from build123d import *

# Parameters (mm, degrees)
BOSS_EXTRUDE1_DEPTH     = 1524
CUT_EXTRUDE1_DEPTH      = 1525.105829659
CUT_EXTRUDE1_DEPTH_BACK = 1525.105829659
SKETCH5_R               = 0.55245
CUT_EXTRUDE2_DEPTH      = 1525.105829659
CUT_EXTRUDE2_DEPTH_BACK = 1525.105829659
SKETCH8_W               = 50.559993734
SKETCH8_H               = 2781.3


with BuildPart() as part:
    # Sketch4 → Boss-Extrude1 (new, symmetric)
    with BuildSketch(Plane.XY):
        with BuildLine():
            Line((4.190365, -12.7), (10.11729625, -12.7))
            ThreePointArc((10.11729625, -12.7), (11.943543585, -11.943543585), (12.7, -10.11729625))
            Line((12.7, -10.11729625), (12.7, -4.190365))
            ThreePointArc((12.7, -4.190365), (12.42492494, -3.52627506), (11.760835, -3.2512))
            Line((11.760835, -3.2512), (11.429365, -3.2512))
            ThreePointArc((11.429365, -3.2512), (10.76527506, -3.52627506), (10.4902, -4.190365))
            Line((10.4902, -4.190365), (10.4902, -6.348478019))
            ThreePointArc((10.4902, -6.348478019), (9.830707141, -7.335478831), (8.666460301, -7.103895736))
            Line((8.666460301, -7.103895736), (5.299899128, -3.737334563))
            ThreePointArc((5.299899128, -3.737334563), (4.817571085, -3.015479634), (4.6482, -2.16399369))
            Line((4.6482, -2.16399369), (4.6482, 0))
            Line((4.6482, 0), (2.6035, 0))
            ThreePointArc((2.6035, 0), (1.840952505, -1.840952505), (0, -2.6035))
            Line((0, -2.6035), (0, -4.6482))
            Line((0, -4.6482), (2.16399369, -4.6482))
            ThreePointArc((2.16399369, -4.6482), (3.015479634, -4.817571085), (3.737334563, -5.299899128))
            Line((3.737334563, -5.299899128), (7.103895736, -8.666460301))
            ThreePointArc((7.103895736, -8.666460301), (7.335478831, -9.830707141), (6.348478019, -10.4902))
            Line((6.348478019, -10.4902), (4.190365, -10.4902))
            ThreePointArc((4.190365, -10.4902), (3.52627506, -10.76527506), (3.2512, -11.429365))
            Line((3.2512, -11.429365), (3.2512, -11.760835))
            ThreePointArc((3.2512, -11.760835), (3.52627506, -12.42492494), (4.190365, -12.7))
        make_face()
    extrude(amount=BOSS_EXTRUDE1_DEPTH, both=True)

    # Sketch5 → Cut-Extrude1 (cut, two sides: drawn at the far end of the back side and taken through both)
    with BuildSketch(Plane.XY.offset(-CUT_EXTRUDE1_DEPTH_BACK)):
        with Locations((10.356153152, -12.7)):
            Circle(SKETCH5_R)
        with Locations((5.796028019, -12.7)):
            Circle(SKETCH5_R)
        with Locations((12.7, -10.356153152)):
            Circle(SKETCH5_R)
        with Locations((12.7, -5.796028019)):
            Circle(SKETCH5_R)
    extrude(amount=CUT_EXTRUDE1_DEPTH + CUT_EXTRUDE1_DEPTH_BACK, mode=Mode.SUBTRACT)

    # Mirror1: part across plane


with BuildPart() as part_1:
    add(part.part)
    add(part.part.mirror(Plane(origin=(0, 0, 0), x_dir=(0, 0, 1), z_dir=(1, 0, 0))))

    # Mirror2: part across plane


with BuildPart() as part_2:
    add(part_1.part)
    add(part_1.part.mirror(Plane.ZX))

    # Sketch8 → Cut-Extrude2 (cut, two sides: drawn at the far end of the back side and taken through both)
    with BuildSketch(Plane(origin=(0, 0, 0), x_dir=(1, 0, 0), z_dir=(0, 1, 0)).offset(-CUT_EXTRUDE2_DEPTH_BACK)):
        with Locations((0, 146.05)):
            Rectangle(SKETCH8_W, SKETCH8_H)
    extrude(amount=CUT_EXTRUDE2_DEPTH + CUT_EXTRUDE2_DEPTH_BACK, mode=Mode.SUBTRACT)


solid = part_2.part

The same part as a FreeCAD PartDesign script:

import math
import FreeCAD as App
import Part
import Sketcher

V = App.Vector
Q = App.Units.Quantity


def add_polygon(sketch, points):
    """Adds a closed chain of lines whose ends are joined by coincident constraints."""
    first, n = sketch.GeometryCount, len(points)
    for a, b in zip(points, points[1:] + points[:1]):
        sketch.addGeometry(Part.LineSegment(App.Vector(*a, 0), App.Vector(*b, 0)), False)
    for i in range(n):
        sketch.addConstraint(Sketcher.Constraint("Coincident", first + i, 2, first + (i + 1) % n, 1))

doc = App.newDocument("Part")
params = doc.addObject("Spreadsheet::Sheet", "Params")
for row, (alias, value) in enumerate([
    ("pad1_length", "120 in"),
    ("sketch3_height", "109.5 in"),
], start=1):
    params.set(f"A{row}", alias)
    params.set(f"B{row}", "=" + value)
    params.setAlias(f"B{row}", alias)

body = doc.addObject("PartDesign::Body", "Body")

sketch1 = body.newObject("Sketcher::SketchObject", "Sketch")
sketch1.AttachmentSupport = (doc.getObject("XY_Plane"), [""])
sketch1.MapMode = "FlatFace"
sketch1.addGeometry([
    Part.LineSegment(V(4.19, -12.7, 0), V(10.12, -12.7, 0)),
    Part.ArcOfCircle(Part.Circle(V(10.12, -10.12, 0), V(0, 0, 1), 2.58), math.radians(-90), math.radians(0)),
    Part.LineSegment(V(12.7, -10.12, 0), V(12.7, -4.19, 0)),
    Part.ArcOfCircle(Part.Circle(V(11.76, -4.19, 0), V(0, 0, 1), 0.94), math.radians(0), math.radians(90)),
    Part.LineSegment(V(11.76, -3.25, 0), V(11.43, -3.25, 0)),
    Part.ArcOfCircle(Part.Circle(V(11.43, -4.19, 0), V(0, 0, 1), 0.94), math.radians(90), math.radians(180)),
    Part.LineSegment(V(10.49, -4.19, 0), V(10.49, -6.35, 0)),
    Part.ArcOfCircle(Part.Circle(V(9.42, -6.35, 0), V(0, 0, 1), 1.07), math.radians(-135), math.radians(0)),
    Part.LineSegment(V(8.67, -7.1, 0), V(5.3, -3.74, 0)),
    Part.ArcOfCircle(Part.Circle(V(6.87, -2.16, 0), V(0, 0, 1), 2.23), math.radians(-180), math.radians(-135)),
    Part.LineSegment(V(4.65, -2.16, 0), V(4.65, 0, 0)),
    Part.LineSegment(V(4.65, 0, 0), V(2.6, 0, 0)),
    Part.ArcOfCircle(Part.Circle(V(0, 0, 0), V(0, 0, 1), 2.6), math.radians(-90), math.radians(0)),
    Part.LineSegment(V(0, -2.6, 0), V(0, -4.65, 0)),
    Part.LineSegment(V(0, -4.65, 0), V(2.16, -4.65, 0)),
    Part.ArcOfCircle(Part.Circle(V(2.16, -6.87, 0), V(0, 0, 1), 2.23), math.radians(45), math.radians(90)),
    Part.LineSegment(V(3.74, -5.3, 0), V(7.1, -8.67, 0)),
    Part.ArcOfCircle(Part.Circle(V(6.35, -9.42, 0), V(0, 0, 1), 1.07), math.radians(-90), math.radians(45)),
    Part.LineSegment(V(6.35, -10.49, 0), V(4.19, -10.49, 0)),
    Part.ArcOfCircle(Part.Circle(V(4.19, -11.43, 0), V(0, 0, 1), 0.94), math.radians(90), math.radians(180)),
    Part.LineSegment(V(3.25, -11.43, 0), V(3.25, -11.76, 0)),
    Part.ArcOfCircle(Part.Circle(V(4.19, -11.76, 0), V(0, 0, 1), 0.94), math.radians(-180), math.radians(-90)),
], False)
sketch1.addConstraint([
    Sketcher.Constraint("Tangent", 0, 2, 1, 1),
    Sketcher.Constraint("Tangent", 1, 2, 2, 1),
    Sketcher.Constraint("Tangent", 2, 2, 3, 1),
    Sketcher.Constraint("Tangent", 3, 2, 4, 1),
    Sketcher.Constraint("Tangent", 4, 2, 5, 1),
    Sketcher.Constraint("Tangent", 5, 2, 6, 1),
    Sketcher.Constraint("Tangent", 6, 2, 7, 2),
    Sketcher.Constraint("Tangent", 7, 1, 8, 1),
    Sketcher.Constraint("Tangent", 8, 2, 9, 2),
    Sketcher.Constraint("Tangent", 9, 1, 10, 1),
    Sketcher.Constraint("Coincident", 10, 2, 11, 1),
    Sketcher.Constraint("Coincident", 11, 2, 12, 2),
    Sketcher.Constraint("Coincident", 12, 1, 13, 1),
    Sketcher.Constraint("Coincident", 13, 2, 14, 1),
    Sketcher.Constraint("Tangent", 14, 2, 15, 2),
    Sketcher.Constraint("Tangent", 15, 1, 16, 1),
    Sketcher.Constraint("Tangent", 16, 2, 17, 2),
    Sketcher.Constraint("Tangent", 17, 1, 18, 1),
    Sketcher.Constraint("Tangent", 18, 2, 19, 1),
    Sketcher.Constraint("Tangent", 19, 2, 20, 1),
    Sketcher.Constraint("Tangent", 20, 2, 21, 1),
    Sketcher.Constraint("Tangent", 21, 2, 0, 1),
    Sketcher.Constraint("Horizontal", 0),
    Sketcher.Constraint("Vertical", 2),
    Sketcher.Constraint("Horizontal", 4),
    Sketcher.Constraint("Vertical", 6),
    Sketcher.Constraint("Vertical", 10),
    Sketcher.Constraint("Horizontal", 11),
    Sketcher.Constraint("Vertical", 13),
    Sketcher.Constraint("Horizontal", 14),
    Sketcher.Constraint("Horizontal", 18),
    Sketcher.Constraint("Vertical", 20),
    Sketcher.Constraint("Coincident", 12, 3, -1, 1),
    Sketcher.Constraint("Equal", 3, 5),
    Sketcher.Constraint("Equal", 9, 15),
    Sketcher.Constraint("Equal", 7, 17),
    Sketcher.Constraint("Equal", 5, 19),
    Sketcher.Constraint("Equal", 19, 21),
    Sketcher.Constraint("PointOnObject", 10, 2, -1),
    Sketcher.Constraint("PointOnObject", 12, 1, -2),
    Sketcher.Constraint("Parallel", 8, 16),
    Sketcher.Constraint("Equal", 0, 2),
    Sketcher.Constraint("Equal", 18, 6),
    Sketcher.Constraint("Equal", 14, 10),
    Sketcher.Constraint("Equal", 11, 13),
    Sketcher.Constraint("Equal", 4, 20),
    Sketcher.Constraint("Equal", 8, 16),
    Sketcher.Constraint("DistanceY", 0, 2, -1, 1, Q("0.5 in")),
    Sketcher.Constraint("Radius", 9, Q("0.0876 in")),
    Sketcher.Constraint("Radius", 12, Q("0.1025 in")),
    Sketcher.Constraint("DistanceX", 9, 1, 5, 2, Q("0.23 in")),
    Sketcher.Constraint("DistanceX", 11, 2, 11, 1, Q("0.0805 in")),
    Sketcher.Constraint("DistanceY", 3, 2, -1, 1, Q("0.128 in")),
    Sketcher.Constraint("Radius", 7, Q("1.068322 mm")),
    Sketcher.Constraint("DistanceX", 17, 3, 7, 3, Q("0.121 in")),
    Sketcher.Constraint("Radius", 1, Q("2.582704 mm")),
    Sketcher.Constraint("Radius", 3, Q("0.939165 mm")),
])
pad1 = body.newObject("PartDesign::Pad", "Pad")
pad1.Profile = sketch1
pad1.setExpression("Length", "Params.pad1_length")
pad1.Midplane = True

sketch2 = body.newObject("Sketcher::SketchObject", "Sketch001")
sketch2.AttachmentSupport = (doc.getObject("XY_Plane"), [""])
sketch2.MapMode = "FlatFace"
sketch2.addGeometry([
    Part.Circle(V(10.4, -12.7, 0), V(0, 0, 1), 0.6),
    Part.Circle(V(5.8, -12.7, 0), V(0, 0, 1), 0.6),
    Part.Circle(V(12.7, -10.4, 0), V(0, 0, 1), 0.6),
    Part.Circle(V(12.7, -5.8, 0), V(0, 0, 1), 0.6),
], False)
sketch2.addConstraint([
    Sketcher.Constraint("Equal", 0, 1),
    Sketcher.Constraint("Equal", 1, 2),
    Sketcher.Constraint("Equal", 2, 3),
    Sketcher.Constraint("Horizontal", 0, 3, 1, 3),
    Sketcher.Constraint("Vertical", 2, 3, 3, 3),
    Sketcher.Constraint("Diameter", 0, Q("0.0435 in")),
    Sketcher.Constraint("DistanceY", 0, 3, -1, 1, Q("0.5 in")),
    Sketcher.Constraint("DistanceX", -1, 1, 2, 3, Q("0.5 in")),
    Sketcher.Constraint("DistanceX", -1, 1, 1, 3, Q("5.796028 mm")),
    Sketcher.Constraint("DistanceY", 3, 3, -1, 1, Q("5.796028 mm")),
    Sketcher.Constraint("DistanceX", -1, 1, 0, 3, Q("10.356153 mm")),
    Sketcher.Constraint("DistanceY", 2, 3, -1, 1, Q("10.356153 mm")),
])
pocket1 = body.newObject("PartDesign::Pocket", "Pocket")
pocket1.Profile = sketch2
pocket1.Type = "ThroughAll"
pocket1.Midplane = True
body2 = doc.addObject("PartDesign::Body", "Body001")
doc.recompute()

body2.BaseFeature = body
doc.recompute()

mirroring = doc.addObject("Part::Mirroring", "Mirroring")
mirroring.Source = body
mirroring.Base = V(0, 0, 0)
mirroring.Normal = V(1, 0, 0)
body3 = doc.addObject("PartDesign::Body", "Body002")
body3.BaseFeature = mirroring
boolean = body2.newObject("PartDesign::Boolean", "Boolean")
boolean.Type = "Fuse"
boolean.addObjects([body3])
doc.recompute()
body4 = doc.addObject("PartDesign::Body", "Body003")
doc.recompute()

body4.BaseFeature = body2
doc.recompute()

mirroring2 = doc.addObject("Part::Mirroring", "Mirroring001")
mirroring2.Source = body2
mirroring2.Base = V(0, 0, 0)
mirroring2.Normal = V(0, 1, 0)
body5 = doc.addObject("PartDesign::Body", "Body004")
body5.BaseFeature = mirroring2
boolean2 = body4.newObject("PartDesign::Boolean", "Boolean001")
boolean2.Type = "Fuse"
boolean2.addObjects([body5])
doc.recompute()

sketch3 = body4.newObject("Sketcher::SketchObject", "Sketch002")
sketch3.AttachmentSupport = (doc.getObject("XZ_Plane003"), [""])
sketch3.MapMode = "FlatFace"
add_polygon(sketch3, [(-25, -1537), (-25, 1245), (25, 1245), (25, -1537)])
sketch3.addConstraint([
    Sketcher.Constraint("Vertical", 0),
    Sketcher.Constraint("Horizontal", 1),
    Sketcher.Constraint("Vertical", 2),
    Sketcher.Constraint("Horizontal", 3),
    Sketcher.Constraint("DistanceY", 0, 1, 0, 2, Q("109.5 in")),
    Sketcher.Constraint("DistanceY", -1, 1, 0, 2, Q("49 in")),
    Sketcher.Constraint("DistanceX", 1, 1, 1, 2, Q("50.559994 mm")),
    Sketcher.Constraint("DistanceX", 0, 2, -1, 1, Q("25.279997 mm")),
])
sketch3.setExpression("Constraints[8]", "Params.sketch3_height")
pocket2 = body4.newObject("PartDesign::Pocket", "Pocket001")
pocket2.Profile = sketch3
pocket2.Type = "ThroughAll"
pocket2.Midplane = True
mirroring.Visibility = False
mirroring2.Visibility = False

doc.recompute()
